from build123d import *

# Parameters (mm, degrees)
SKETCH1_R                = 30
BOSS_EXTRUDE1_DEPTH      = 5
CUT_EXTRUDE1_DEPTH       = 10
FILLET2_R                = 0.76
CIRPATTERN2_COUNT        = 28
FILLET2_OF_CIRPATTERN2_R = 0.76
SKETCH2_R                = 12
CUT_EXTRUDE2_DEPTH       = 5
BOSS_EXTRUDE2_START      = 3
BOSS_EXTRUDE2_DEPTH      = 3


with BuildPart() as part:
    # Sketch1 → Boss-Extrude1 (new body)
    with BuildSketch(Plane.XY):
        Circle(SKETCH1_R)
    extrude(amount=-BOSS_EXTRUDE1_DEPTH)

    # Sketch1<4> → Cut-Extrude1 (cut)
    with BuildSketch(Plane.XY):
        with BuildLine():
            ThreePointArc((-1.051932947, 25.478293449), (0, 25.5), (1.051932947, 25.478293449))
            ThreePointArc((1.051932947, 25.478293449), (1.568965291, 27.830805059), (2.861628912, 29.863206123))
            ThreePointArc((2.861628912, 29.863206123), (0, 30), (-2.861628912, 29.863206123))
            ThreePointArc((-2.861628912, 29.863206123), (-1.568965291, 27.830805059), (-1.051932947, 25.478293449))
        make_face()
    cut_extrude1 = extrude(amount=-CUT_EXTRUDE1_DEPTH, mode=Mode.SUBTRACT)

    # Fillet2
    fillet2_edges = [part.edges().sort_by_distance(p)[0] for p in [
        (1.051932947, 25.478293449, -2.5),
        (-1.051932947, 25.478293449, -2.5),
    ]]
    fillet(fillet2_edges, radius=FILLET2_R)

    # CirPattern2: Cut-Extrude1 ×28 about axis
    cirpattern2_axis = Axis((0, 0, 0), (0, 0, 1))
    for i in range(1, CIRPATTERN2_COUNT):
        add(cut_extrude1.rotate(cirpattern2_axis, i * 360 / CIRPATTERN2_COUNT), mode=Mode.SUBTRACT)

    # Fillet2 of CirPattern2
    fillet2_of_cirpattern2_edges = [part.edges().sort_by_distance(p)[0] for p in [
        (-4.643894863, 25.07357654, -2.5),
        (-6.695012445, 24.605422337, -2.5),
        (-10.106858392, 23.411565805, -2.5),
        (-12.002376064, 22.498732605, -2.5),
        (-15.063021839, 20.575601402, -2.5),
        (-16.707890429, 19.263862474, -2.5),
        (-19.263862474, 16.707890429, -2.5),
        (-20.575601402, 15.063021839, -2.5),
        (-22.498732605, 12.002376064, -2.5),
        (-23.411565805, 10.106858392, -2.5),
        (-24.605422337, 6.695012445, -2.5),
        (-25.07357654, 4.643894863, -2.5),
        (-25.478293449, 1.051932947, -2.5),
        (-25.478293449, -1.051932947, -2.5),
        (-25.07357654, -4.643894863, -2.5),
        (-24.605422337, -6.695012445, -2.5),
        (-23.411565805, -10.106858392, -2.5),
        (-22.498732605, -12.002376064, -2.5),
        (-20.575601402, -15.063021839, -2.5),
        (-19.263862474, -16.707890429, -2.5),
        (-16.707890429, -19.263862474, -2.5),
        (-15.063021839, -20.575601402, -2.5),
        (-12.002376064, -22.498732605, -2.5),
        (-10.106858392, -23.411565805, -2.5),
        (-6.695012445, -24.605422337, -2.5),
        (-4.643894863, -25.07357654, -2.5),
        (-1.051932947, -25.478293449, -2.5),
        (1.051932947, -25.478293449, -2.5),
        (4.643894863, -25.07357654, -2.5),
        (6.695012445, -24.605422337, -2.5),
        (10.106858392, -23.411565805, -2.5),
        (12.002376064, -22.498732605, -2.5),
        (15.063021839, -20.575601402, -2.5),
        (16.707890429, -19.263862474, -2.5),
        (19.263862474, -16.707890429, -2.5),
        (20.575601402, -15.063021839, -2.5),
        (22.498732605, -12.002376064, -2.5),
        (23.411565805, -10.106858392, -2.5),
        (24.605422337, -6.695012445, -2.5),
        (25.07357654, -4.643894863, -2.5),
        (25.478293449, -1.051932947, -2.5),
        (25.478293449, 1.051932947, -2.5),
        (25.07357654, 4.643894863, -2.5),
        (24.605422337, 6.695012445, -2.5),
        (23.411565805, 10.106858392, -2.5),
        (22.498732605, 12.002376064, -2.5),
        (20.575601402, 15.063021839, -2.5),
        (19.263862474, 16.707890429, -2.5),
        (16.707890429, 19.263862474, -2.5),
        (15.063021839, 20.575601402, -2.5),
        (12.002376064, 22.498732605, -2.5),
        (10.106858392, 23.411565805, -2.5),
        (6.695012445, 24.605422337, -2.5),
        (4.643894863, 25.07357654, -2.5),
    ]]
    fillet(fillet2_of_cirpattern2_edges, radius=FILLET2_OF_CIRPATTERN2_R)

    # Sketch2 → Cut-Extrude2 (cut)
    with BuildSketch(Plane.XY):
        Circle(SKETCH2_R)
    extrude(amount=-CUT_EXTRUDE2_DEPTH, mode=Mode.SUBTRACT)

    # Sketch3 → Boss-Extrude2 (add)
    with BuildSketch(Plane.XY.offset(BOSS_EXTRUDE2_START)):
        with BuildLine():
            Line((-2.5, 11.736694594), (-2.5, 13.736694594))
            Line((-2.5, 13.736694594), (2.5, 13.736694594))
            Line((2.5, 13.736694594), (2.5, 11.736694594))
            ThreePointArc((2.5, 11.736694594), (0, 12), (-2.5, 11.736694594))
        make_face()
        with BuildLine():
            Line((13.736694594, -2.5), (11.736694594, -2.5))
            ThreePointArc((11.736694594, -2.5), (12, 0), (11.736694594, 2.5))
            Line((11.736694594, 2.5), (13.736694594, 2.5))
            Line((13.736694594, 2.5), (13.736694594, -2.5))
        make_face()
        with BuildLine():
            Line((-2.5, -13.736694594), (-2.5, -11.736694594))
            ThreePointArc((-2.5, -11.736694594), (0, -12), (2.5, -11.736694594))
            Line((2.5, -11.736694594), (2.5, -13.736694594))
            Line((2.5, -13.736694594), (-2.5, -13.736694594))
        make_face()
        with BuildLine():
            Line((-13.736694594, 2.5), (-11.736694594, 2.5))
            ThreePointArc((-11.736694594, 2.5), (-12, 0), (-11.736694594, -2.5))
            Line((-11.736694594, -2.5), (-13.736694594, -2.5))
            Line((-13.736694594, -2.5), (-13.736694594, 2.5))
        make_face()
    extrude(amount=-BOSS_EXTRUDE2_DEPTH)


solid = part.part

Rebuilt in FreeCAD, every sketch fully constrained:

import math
import FreeCAD as App
import Part
import Sketcher


def edges_at(feature, points):
    """Names of the edges that pass closest to the given points."""
    edges = feature.Shape.Edges
    near = lambda p: min(range(len(edges)), key=lambda i: edges[i].distToShape(Part.Vertex(*p))[0])
    return sorted({f"Edge{near(p) + 1}" for p in points})

doc = App.newDocument("Part")
body = doc.addObject("PartDesign::Body", "Body")

# Sketch on XY plane
sketch1 = body.newObject("Sketcher::SketchObject", "Sketch")
sketch1.AttachmentSupport = (doc.getObject("XY_Plane"), [""])
sketch1.MapMode = "FlatFace"
sketch1.addGeometry(Part.Circle(App.Vector(0, 0, 0), App.Vector(0, 0, 1), 30), False)
sketch1.addConstraint(Sketcher.Constraint("Coincident", 0, 3, -1, 1))
sketch1.addConstraint(Sketcher.Constraint("Diameter", 0, 60.0))
pad1 = body.newObject("PartDesign::Pad", "Pad")
pad1.Profile = sketch1
pad1.Length = 5
pad1.Reversed = True

# Sketch on XY plane
sketch2 = body.newObject("Sketcher::SketchObject", "Sketch001")
sketch2.AttachmentSupport = (doc.getObject("XY_Plane"), [""])
sketch2.MapMode = "FlatFace"
sketch2.addGeometry(Part.ArcOfCircle(Part.Circle(App.Vector(0, 0, 0), App.Vector(0, 0, 1), 25.5), math.radians(87.635748), math.radians(92.364252)), False)
sketch2.addGeometry(Part.ArcOfCircle(Part.Circle(App.Vector(7.960231, 25.193068, 0), App.Vector(0, 0, 1), 6.914184), math.radians(137.511424), math.radians(177.635748)), False)
sketch2.addGeometry(Part.ArcOfCircle(Part.Circle(App.Vector(0, 0, 0), App.Vector(0, 0, 1), 30), math.radians(84.526369), math.radians(95.473631)), False)
sketch2.addGeometry(Part.ArcOfCircle(Part.Circle(App.Vector(-7.960231, 25.193068, 0), App.Vector(0, 0, 1), 6.914184), math.radians(2.364252), math.radians(42.488576)), False)
sketch2.addConstraint(Sketcher.Constraint("Coincident", 0, 1, 1, 2))
sketch2.addConstraint(Sketcher.Constraint("Coincident", 1, 1, 2, 1))
sketch2.addConstraint(Sketcher.Constraint("Coincident", 2, 2, 3, 2))
sketch2.addConstraint(Sketcher.Constraint("Coincident", 3, 1, 0, 2))
sketch2.addConstraint(Sketcher.Constraint("Coincident", 0, 3, -1, 1))
sketch2.addConstraint(Sketcher.Constraint("Coincident", 2, 3, -1, 1))
sketch2.addConstraint(Sketcher.Constraint("Equal", 1, 3))
sketch2.addConstraint(Sketcher.Constraint("Symmetric", 1, 3, 3, 3, -2))
sketch2.addConstraint(Sketcher.Constraint("Radius", 2, 30.0))
sketch2.addConstraint(Sketcher.Constraint("Radius", 0, 25.5))
sketch2.addConstraint(Sketcher.Constraint("Radius", 1, 6.914184))
sketch2.addConstraint(Sketcher.Constraint("DistanceX", 3, 3, 3, 1, 6.908298))
sketch2.addConstraint(Sketcher.Constraint("DistanceX", -1, 1, 1, 3, 7.960231))
pocket1 = body.newObject("PartDesign::Pocket", "Pocket")
pocket1.Profile = sketch2
pocket1.Length = 10
doc.recompute()

fillet = body.newObject("PartDesign::Fillet", "Fillet")
fillet.Base = (pocket1, edges_at(pocket1, [(1.052, 25.478, -2.5), (-1.052, 25.478, -2.5)]))
fillet.Radius = 0.76
doc.recompute()

polarpattern = body.newObject("PartDesign::PolarPattern", "PolarPattern")
polarpattern.Originals = [pocket1]
polarpattern.Axis = (doc.getObject("Z_Axis"), [""])
polarpattern.Angle = 360
polarpattern.Occurrences = 28
body.Tip = polarpattern
doc.recompute()

fillet2 = body.newObject("PartDesign::Fillet", "Fillet001")
fillet2.Base = (polarpattern, edges_at(polarpattern, [
    (-4.644, 25.074, -2.5),
    (-6.695, 24.605, -2.5),
    (-10.107, 23.412, -2.5),
    (-12.002, 22.499, -2.5),
    (-15.063, 20.576, -2.5),
    (-16.708, 19.264, -2.5),
    (-19.264, 16.708, -2.5),
    (-20.576, 15.063, -2.5),
    (-22.499, 12.002, -2.5),
    (-23.412, 10.107, -2.5),
    (-24.605, 6.695, -2.5),
    (-25.074, 4.644, -2.5),
    (-25.478, 1.052, -2.5),
    (-25.478, -1.052, -2.5),
    (-25.074, -4.644, -2.5),
    (-24.605, -6.695, -2.5),
    (-23.412, -10.107, -2.5),
    (-22.499, -12.002, -2.5),
    (-20.576, -15.063, -2.5),
    (-19.264, -16.708, -2.5),
    (-16.708, -19.264, -2.5),
    (-15.063, -20.576, -2.5),
    (-12.002, -22.499, -2.5),
    (-10.107, -23.412, -2.5),
    (-6.695, -24.605, -2.5),
    (-4.644, -25.074, -2.5),
    (-1.052, -25.478, -2.5),
    (1.052, -25.478, -2.5),
    (4.644, -25.074, -2.5),
    (6.695, -24.605, -2.5),
    (10.107, -23.412, -2.5),
    (12.002, -22.499, -2.5),
    (15.063, -20.576, -2.5),
    (16.708, -19.264, -2.5),
    (19.264, -16.708, -2.5),
    (20.576, -15.063, -2.5),
    (22.499, -12.002, -2.5),
    (23.412, -10.107, -2.5),
    (24.605, -6.695, -2.5),
    (25.074, -4.644, -2.5),
    (25.478, -1.052, -2.5),
    (25.478, 1.052, -2.5),
    (25.074, 4.644, -2.5),
    (24.605, 6.695, -2.5),
    (23.412, 10.107, -2.5),
    (22.499, 12.002, -2.5),
    (20.576, 15.063, -2.5),
    (19.264, 16.708, -2.5),
    (16.708, 19.264, -2.5),
    (15.063, 20.576, -2.5),
    (12.002, 22.499, -2.5),
    (10.107, 23.412, -2.5),
    (6.695, 24.605, -2.5),
    (4.644, 25.074, -2.5),
]))
fillet2.Radius = 0.76

# Sketch on XY plane
sketch3 = body.newObject("Sketcher::SketchObject", "Sketch002")
sketch3.AttachmentSupport = (doc.getObject("XY_Plane"), [""])
sketch3.MapMode = "FlatFace"
sketch3.addGeometry(Part.Circle(App.Vector(0, 0, 0), App.Vector(0, 0, 1), 12), False)
sketch3.addConstraint(Sketcher.Constraint("Coincident", 0, 3, -1, 1))
sketch3.addConstraint(Sketcher.Constraint("Diameter", 0, 24.0))
pocket2 = body.newObject("PartDesign::Pocket", "Pocket001")
pocket2.Profile = sketch3
pocket2.Length = 5

# Sketch on XY plane
sketch4 = body.newObject("Sketcher::SketchObject", "Sketch003")
sketch4.AttachmentSupport = (doc.getObject("XY_Plane"), [""])
sketch4.MapMode = "FlatFace"
sketch4.AttachmentOffset = App.Placement(App.Vector(0, 0, 3), App.Rotation())
sketch4.addGeometry(Part.LineSegment(App.Vector(-2.5, 13.736695, 0), App.Vector(-2.5, 11.736695, 0)), False)
sketch4.addGeometry(Part.ArcOfCircle(Part.Circle(App.Vector(0, 0, 0), App.Vector(0, 0, 1), 12), math.radians(77.975301), math.radians(102.024699)), False)
sketch4.addGeometry(Part.LineSegment(App.Vector(2.5, 11.736695, 0), App.Vector(2.5, 13.736695, 0)), False)
sketch4.addGeometry(Part.LineSegment(App.Vector(2.5, 13.736695, 0), App.Vector(-2.5, 13.736695, 0)), False)
sketch4.addGeometry(Part.LineSegment(App.Vector(11.736695, -2.5, 0), App.Vector(13.736695, -2.5, 0)), False)
sketch4.addGeometry(Part.LineSegment(App.Vector(13.736695, -2.5, 0), App.Vector(13.736695, 2.5, 0)), False)
sketch4.addGeometry(Part.LineSegment(App.Vector(13.736695, 2.5, 0), App.Vector(11.736695, 2.5, 0)), False)
sketch4.addGeometry(Part.ArcOfCircle(Part.Circle(App.Vector(0, 0, 0), App.Vector(0, 0, 1), 12), math.radians(-12.024699), math.radians(12.024699)), False)
sketch4.addGeometry(Part.LineSegment(App.Vector(-2.5, -11.736695, 0), App.Vector(-2.5, -13.736695, 0)), False)
sketch4.addGeometry(Part.LineSegment(App.Vector(-2.5, -13.736695, 0), App.Vector(2.5, -13.736695, 0)), False)
sketch4.addGeometry(Part.LineSegment(App.Vector(2.5, -13.736695, 0), App.Vector(2.5, -11.736695, 0)), False)
sketch4.addGeometry(Part.ArcOfCircle(Part.Circle(App.Vector(0, 0, 0), App.Vector(0, 0, 1), 12), math.radians(-102.024699), math.radians(-77.975301)), False)
sketch4.addGeometry(Part.LineSegment(App.Vector(-11.736695, 2.5, 0), App.Vector(-13.736695, 2.5, 0)), False)
sketch4.addGeometry(Part.LineSegment(App.Vector(-13.736695, 2.5, 0), App.Vector(-13.736695, -2.5, 0)), False)
sketch4.addGeometry(Part.LineSegment(App.Vector(-13.736695, -2.5, 0), App.Vector(-11.736695, -2.5, 0)), False)
sketch4.addGeometry(Part.ArcOfCircle(Part.Circle(App.Vector(0, 0, 0), App.Vector(0, 0, 1), 12), math.radians(167.975301), math.radians(192.024699)), False)
sketch4.addConstraint(Sketcher.Constraint("Coincident", 0, 2, 1, 2))
sketch4.addConstraint(Sketcher.Constraint("Coincident", 1, 1, 2, 1))
sketch4.addConstraint(Sketcher.Constraint("Coincident", 2, 2, 3, 1))
sketch4.addConstraint(Sketcher.Constraint("Coincident", 3, 2, 0, 1))
sketch4.addConstraint(Sketcher.Constraint("Coincident", 4, 2, 5, 1))
sketch4.addConstraint(Sketcher.Constraint("Coincident", 5, 2, 6, 1))
sketch4.addConstraint(Sketcher.Constraint("Coincident", 6, 2, 7, 2))
sketch4.addConstraint(Sketcher.Constraint("Coincident", 7, 1, 4, 1))
sketch4.addConstraint(Sketcher.Constraint("Coincident", 8, 2, 9, 1))
sketch4.addConstraint(Sketcher.Constraint("Coincident", 9, 2, 10, 1))
sketch4.addConstraint(Sketcher.Constraint("Coincident", 10, 2, 11, 2))
sketch4.addConstraint(Sketcher.Constraint("Coincident", 11, 1, 8, 1))
sketch4.addConstraint(Sketcher.Constraint("Coincident", 12, 2, 13, 1))
sketch4.addConstraint(Sketcher.Constraint("Coincident", 13, 2, 14, 1))
sketch4.addConstraint(Sketcher.Constraint("Coincident", 14, 2, 15, 2))
sketch4.addConstraint(Sketcher.Constraint("Coincident", 15, 1, 12, 1))
sketch4.addConstraint(Sketcher.Constraint("Vertical", 0))
sketch4.addConstraint(Sketcher.Constraint("Vertical", 2))
sketch4.addConstraint(Sketcher.Constraint("Horizontal", 3))
sketch4.addConstraint(Sketcher.Constraint("Horizontal", 4))
sketch4.addConstraint(Sketcher.Constraint("Vertical", 5))
sketch4.addConstraint(Sketcher.Constraint("Horizontal", 6))
sketch4.addConstraint(Sketcher.Constraint("Vertical", 8))
sketch4.addConstraint(Sketcher.Constraint("Horizontal", 9))
sketch4.addConstraint(Sketcher.Constraint("Vertical", 10))
sketch4.addConstraint(Sketcher.Constraint("Horizontal", 12))
sketch4.addConstraint(Sketcher.Constraint("Vertical", 13))
sketch4.addConstraint(Sketcher.Constraint("Horizontal", 14))
sketch4.addConstraint(Sketcher.Constraint("Coincident", 1, 3, -1, 1))
sketch4.addConstraint(Sketcher.Constraint("Coincident", 7, 3, -1, 1))
sketch4.addConstraint(Sketcher.Constraint("Coincident", 11, 3, -1, 1))
sketch4.addConstraint(Sketcher.Constraint("Coincident", 15, 3, -1, 1))
sketch4.addConstraint(Sketcher.Constraint("Equal", 1, 7))
sketch4.addConstraint(Sketcher.Constraint("Equal", 7, 11))
sketch4.addConstraint(Sketcher.Constraint("Equal", 11, 15))
sketch4.addConstraint(Sketcher.Constraint("Symmetric", 2, 2, 8, 2, -1, 1))
sketch4.addConstraint(Sketcher.Constraint("Symmetric", 4, 2, 12, 2, -1, 1))
sketch4.addConstraint(Sketcher.Constraint("Horizontal", 0, 2, 1, 1))
sketch4.addConstraint(Sketcher.Constraint("Horizontal", 10, 2, 11, 1))
sketch4.addConstraint(Sketcher.Constraint("Horizontal", 6, 2, 12, 2))
sketch4.addConstraint(Sketcher.Constraint("Horizontal", 7, 1, 13, 2))
sketch4.addConstraint(Sketcher.Constraint("Equal", 14, 0))
sketch4.addConstraint(Sketcher.Constraint("Equal", 9, 5))
sketch4.addConstraint(Sketcher.Constraint("Radius", 1, 12.0))
sketch4.addConstraint(Sketcher.Constraint("DistanceX", 3, 2, 3, 1, 5.0))
sketch4.addConstraint(Sketcher.Constraint("DistanceX", 4, 1, 4, 2, 2.0))
pad2 = body.newObject("PartDesign::Pad", "Pad001")
pad2.Profile = sketch4
pad2.Length = 3
pad2.Reversed = True

doc.recompute()
